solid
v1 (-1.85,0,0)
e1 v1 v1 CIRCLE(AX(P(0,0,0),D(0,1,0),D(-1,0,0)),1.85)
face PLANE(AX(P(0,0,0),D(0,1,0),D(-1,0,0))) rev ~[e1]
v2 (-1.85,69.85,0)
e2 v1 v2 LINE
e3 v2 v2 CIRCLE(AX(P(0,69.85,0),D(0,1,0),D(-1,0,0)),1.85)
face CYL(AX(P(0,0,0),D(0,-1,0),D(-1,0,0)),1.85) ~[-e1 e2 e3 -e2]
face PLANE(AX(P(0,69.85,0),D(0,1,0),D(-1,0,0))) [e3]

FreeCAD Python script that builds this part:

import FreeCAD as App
import Part
import Sketcher

V = App.Vector
Q = App.Units.Quantity

doc = App.newDocument("Part")
body = doc.addObject("PartDesign::Body", "Body")

# Sketch on XZ plane
sketch1 = body.newObject("Sketcher::SketchObject", "Sketch")
sketch1.AttachmentSupport = (doc.getObject("XZ_Plane"), [""])
sketch1.MapMode = "FlatFace"
sketch1.addGeometry(Part.Circle(V(0, 0, 0), V(0, 0, 1), 1.85), False)
sketch1.addConstraint([
    Sketcher.Constraint("Coincident", 0, 3, -1, 1),
    Sketcher.Constraint("Diameter", 0, Q("3.7 mm")),
])
pad1 = body.newObject("PartDesign::Pad", "Pad")
pad1.Profile = sketch1
pad1.Length = 69.85
pad1.Reversed = True

doc.recompute()
